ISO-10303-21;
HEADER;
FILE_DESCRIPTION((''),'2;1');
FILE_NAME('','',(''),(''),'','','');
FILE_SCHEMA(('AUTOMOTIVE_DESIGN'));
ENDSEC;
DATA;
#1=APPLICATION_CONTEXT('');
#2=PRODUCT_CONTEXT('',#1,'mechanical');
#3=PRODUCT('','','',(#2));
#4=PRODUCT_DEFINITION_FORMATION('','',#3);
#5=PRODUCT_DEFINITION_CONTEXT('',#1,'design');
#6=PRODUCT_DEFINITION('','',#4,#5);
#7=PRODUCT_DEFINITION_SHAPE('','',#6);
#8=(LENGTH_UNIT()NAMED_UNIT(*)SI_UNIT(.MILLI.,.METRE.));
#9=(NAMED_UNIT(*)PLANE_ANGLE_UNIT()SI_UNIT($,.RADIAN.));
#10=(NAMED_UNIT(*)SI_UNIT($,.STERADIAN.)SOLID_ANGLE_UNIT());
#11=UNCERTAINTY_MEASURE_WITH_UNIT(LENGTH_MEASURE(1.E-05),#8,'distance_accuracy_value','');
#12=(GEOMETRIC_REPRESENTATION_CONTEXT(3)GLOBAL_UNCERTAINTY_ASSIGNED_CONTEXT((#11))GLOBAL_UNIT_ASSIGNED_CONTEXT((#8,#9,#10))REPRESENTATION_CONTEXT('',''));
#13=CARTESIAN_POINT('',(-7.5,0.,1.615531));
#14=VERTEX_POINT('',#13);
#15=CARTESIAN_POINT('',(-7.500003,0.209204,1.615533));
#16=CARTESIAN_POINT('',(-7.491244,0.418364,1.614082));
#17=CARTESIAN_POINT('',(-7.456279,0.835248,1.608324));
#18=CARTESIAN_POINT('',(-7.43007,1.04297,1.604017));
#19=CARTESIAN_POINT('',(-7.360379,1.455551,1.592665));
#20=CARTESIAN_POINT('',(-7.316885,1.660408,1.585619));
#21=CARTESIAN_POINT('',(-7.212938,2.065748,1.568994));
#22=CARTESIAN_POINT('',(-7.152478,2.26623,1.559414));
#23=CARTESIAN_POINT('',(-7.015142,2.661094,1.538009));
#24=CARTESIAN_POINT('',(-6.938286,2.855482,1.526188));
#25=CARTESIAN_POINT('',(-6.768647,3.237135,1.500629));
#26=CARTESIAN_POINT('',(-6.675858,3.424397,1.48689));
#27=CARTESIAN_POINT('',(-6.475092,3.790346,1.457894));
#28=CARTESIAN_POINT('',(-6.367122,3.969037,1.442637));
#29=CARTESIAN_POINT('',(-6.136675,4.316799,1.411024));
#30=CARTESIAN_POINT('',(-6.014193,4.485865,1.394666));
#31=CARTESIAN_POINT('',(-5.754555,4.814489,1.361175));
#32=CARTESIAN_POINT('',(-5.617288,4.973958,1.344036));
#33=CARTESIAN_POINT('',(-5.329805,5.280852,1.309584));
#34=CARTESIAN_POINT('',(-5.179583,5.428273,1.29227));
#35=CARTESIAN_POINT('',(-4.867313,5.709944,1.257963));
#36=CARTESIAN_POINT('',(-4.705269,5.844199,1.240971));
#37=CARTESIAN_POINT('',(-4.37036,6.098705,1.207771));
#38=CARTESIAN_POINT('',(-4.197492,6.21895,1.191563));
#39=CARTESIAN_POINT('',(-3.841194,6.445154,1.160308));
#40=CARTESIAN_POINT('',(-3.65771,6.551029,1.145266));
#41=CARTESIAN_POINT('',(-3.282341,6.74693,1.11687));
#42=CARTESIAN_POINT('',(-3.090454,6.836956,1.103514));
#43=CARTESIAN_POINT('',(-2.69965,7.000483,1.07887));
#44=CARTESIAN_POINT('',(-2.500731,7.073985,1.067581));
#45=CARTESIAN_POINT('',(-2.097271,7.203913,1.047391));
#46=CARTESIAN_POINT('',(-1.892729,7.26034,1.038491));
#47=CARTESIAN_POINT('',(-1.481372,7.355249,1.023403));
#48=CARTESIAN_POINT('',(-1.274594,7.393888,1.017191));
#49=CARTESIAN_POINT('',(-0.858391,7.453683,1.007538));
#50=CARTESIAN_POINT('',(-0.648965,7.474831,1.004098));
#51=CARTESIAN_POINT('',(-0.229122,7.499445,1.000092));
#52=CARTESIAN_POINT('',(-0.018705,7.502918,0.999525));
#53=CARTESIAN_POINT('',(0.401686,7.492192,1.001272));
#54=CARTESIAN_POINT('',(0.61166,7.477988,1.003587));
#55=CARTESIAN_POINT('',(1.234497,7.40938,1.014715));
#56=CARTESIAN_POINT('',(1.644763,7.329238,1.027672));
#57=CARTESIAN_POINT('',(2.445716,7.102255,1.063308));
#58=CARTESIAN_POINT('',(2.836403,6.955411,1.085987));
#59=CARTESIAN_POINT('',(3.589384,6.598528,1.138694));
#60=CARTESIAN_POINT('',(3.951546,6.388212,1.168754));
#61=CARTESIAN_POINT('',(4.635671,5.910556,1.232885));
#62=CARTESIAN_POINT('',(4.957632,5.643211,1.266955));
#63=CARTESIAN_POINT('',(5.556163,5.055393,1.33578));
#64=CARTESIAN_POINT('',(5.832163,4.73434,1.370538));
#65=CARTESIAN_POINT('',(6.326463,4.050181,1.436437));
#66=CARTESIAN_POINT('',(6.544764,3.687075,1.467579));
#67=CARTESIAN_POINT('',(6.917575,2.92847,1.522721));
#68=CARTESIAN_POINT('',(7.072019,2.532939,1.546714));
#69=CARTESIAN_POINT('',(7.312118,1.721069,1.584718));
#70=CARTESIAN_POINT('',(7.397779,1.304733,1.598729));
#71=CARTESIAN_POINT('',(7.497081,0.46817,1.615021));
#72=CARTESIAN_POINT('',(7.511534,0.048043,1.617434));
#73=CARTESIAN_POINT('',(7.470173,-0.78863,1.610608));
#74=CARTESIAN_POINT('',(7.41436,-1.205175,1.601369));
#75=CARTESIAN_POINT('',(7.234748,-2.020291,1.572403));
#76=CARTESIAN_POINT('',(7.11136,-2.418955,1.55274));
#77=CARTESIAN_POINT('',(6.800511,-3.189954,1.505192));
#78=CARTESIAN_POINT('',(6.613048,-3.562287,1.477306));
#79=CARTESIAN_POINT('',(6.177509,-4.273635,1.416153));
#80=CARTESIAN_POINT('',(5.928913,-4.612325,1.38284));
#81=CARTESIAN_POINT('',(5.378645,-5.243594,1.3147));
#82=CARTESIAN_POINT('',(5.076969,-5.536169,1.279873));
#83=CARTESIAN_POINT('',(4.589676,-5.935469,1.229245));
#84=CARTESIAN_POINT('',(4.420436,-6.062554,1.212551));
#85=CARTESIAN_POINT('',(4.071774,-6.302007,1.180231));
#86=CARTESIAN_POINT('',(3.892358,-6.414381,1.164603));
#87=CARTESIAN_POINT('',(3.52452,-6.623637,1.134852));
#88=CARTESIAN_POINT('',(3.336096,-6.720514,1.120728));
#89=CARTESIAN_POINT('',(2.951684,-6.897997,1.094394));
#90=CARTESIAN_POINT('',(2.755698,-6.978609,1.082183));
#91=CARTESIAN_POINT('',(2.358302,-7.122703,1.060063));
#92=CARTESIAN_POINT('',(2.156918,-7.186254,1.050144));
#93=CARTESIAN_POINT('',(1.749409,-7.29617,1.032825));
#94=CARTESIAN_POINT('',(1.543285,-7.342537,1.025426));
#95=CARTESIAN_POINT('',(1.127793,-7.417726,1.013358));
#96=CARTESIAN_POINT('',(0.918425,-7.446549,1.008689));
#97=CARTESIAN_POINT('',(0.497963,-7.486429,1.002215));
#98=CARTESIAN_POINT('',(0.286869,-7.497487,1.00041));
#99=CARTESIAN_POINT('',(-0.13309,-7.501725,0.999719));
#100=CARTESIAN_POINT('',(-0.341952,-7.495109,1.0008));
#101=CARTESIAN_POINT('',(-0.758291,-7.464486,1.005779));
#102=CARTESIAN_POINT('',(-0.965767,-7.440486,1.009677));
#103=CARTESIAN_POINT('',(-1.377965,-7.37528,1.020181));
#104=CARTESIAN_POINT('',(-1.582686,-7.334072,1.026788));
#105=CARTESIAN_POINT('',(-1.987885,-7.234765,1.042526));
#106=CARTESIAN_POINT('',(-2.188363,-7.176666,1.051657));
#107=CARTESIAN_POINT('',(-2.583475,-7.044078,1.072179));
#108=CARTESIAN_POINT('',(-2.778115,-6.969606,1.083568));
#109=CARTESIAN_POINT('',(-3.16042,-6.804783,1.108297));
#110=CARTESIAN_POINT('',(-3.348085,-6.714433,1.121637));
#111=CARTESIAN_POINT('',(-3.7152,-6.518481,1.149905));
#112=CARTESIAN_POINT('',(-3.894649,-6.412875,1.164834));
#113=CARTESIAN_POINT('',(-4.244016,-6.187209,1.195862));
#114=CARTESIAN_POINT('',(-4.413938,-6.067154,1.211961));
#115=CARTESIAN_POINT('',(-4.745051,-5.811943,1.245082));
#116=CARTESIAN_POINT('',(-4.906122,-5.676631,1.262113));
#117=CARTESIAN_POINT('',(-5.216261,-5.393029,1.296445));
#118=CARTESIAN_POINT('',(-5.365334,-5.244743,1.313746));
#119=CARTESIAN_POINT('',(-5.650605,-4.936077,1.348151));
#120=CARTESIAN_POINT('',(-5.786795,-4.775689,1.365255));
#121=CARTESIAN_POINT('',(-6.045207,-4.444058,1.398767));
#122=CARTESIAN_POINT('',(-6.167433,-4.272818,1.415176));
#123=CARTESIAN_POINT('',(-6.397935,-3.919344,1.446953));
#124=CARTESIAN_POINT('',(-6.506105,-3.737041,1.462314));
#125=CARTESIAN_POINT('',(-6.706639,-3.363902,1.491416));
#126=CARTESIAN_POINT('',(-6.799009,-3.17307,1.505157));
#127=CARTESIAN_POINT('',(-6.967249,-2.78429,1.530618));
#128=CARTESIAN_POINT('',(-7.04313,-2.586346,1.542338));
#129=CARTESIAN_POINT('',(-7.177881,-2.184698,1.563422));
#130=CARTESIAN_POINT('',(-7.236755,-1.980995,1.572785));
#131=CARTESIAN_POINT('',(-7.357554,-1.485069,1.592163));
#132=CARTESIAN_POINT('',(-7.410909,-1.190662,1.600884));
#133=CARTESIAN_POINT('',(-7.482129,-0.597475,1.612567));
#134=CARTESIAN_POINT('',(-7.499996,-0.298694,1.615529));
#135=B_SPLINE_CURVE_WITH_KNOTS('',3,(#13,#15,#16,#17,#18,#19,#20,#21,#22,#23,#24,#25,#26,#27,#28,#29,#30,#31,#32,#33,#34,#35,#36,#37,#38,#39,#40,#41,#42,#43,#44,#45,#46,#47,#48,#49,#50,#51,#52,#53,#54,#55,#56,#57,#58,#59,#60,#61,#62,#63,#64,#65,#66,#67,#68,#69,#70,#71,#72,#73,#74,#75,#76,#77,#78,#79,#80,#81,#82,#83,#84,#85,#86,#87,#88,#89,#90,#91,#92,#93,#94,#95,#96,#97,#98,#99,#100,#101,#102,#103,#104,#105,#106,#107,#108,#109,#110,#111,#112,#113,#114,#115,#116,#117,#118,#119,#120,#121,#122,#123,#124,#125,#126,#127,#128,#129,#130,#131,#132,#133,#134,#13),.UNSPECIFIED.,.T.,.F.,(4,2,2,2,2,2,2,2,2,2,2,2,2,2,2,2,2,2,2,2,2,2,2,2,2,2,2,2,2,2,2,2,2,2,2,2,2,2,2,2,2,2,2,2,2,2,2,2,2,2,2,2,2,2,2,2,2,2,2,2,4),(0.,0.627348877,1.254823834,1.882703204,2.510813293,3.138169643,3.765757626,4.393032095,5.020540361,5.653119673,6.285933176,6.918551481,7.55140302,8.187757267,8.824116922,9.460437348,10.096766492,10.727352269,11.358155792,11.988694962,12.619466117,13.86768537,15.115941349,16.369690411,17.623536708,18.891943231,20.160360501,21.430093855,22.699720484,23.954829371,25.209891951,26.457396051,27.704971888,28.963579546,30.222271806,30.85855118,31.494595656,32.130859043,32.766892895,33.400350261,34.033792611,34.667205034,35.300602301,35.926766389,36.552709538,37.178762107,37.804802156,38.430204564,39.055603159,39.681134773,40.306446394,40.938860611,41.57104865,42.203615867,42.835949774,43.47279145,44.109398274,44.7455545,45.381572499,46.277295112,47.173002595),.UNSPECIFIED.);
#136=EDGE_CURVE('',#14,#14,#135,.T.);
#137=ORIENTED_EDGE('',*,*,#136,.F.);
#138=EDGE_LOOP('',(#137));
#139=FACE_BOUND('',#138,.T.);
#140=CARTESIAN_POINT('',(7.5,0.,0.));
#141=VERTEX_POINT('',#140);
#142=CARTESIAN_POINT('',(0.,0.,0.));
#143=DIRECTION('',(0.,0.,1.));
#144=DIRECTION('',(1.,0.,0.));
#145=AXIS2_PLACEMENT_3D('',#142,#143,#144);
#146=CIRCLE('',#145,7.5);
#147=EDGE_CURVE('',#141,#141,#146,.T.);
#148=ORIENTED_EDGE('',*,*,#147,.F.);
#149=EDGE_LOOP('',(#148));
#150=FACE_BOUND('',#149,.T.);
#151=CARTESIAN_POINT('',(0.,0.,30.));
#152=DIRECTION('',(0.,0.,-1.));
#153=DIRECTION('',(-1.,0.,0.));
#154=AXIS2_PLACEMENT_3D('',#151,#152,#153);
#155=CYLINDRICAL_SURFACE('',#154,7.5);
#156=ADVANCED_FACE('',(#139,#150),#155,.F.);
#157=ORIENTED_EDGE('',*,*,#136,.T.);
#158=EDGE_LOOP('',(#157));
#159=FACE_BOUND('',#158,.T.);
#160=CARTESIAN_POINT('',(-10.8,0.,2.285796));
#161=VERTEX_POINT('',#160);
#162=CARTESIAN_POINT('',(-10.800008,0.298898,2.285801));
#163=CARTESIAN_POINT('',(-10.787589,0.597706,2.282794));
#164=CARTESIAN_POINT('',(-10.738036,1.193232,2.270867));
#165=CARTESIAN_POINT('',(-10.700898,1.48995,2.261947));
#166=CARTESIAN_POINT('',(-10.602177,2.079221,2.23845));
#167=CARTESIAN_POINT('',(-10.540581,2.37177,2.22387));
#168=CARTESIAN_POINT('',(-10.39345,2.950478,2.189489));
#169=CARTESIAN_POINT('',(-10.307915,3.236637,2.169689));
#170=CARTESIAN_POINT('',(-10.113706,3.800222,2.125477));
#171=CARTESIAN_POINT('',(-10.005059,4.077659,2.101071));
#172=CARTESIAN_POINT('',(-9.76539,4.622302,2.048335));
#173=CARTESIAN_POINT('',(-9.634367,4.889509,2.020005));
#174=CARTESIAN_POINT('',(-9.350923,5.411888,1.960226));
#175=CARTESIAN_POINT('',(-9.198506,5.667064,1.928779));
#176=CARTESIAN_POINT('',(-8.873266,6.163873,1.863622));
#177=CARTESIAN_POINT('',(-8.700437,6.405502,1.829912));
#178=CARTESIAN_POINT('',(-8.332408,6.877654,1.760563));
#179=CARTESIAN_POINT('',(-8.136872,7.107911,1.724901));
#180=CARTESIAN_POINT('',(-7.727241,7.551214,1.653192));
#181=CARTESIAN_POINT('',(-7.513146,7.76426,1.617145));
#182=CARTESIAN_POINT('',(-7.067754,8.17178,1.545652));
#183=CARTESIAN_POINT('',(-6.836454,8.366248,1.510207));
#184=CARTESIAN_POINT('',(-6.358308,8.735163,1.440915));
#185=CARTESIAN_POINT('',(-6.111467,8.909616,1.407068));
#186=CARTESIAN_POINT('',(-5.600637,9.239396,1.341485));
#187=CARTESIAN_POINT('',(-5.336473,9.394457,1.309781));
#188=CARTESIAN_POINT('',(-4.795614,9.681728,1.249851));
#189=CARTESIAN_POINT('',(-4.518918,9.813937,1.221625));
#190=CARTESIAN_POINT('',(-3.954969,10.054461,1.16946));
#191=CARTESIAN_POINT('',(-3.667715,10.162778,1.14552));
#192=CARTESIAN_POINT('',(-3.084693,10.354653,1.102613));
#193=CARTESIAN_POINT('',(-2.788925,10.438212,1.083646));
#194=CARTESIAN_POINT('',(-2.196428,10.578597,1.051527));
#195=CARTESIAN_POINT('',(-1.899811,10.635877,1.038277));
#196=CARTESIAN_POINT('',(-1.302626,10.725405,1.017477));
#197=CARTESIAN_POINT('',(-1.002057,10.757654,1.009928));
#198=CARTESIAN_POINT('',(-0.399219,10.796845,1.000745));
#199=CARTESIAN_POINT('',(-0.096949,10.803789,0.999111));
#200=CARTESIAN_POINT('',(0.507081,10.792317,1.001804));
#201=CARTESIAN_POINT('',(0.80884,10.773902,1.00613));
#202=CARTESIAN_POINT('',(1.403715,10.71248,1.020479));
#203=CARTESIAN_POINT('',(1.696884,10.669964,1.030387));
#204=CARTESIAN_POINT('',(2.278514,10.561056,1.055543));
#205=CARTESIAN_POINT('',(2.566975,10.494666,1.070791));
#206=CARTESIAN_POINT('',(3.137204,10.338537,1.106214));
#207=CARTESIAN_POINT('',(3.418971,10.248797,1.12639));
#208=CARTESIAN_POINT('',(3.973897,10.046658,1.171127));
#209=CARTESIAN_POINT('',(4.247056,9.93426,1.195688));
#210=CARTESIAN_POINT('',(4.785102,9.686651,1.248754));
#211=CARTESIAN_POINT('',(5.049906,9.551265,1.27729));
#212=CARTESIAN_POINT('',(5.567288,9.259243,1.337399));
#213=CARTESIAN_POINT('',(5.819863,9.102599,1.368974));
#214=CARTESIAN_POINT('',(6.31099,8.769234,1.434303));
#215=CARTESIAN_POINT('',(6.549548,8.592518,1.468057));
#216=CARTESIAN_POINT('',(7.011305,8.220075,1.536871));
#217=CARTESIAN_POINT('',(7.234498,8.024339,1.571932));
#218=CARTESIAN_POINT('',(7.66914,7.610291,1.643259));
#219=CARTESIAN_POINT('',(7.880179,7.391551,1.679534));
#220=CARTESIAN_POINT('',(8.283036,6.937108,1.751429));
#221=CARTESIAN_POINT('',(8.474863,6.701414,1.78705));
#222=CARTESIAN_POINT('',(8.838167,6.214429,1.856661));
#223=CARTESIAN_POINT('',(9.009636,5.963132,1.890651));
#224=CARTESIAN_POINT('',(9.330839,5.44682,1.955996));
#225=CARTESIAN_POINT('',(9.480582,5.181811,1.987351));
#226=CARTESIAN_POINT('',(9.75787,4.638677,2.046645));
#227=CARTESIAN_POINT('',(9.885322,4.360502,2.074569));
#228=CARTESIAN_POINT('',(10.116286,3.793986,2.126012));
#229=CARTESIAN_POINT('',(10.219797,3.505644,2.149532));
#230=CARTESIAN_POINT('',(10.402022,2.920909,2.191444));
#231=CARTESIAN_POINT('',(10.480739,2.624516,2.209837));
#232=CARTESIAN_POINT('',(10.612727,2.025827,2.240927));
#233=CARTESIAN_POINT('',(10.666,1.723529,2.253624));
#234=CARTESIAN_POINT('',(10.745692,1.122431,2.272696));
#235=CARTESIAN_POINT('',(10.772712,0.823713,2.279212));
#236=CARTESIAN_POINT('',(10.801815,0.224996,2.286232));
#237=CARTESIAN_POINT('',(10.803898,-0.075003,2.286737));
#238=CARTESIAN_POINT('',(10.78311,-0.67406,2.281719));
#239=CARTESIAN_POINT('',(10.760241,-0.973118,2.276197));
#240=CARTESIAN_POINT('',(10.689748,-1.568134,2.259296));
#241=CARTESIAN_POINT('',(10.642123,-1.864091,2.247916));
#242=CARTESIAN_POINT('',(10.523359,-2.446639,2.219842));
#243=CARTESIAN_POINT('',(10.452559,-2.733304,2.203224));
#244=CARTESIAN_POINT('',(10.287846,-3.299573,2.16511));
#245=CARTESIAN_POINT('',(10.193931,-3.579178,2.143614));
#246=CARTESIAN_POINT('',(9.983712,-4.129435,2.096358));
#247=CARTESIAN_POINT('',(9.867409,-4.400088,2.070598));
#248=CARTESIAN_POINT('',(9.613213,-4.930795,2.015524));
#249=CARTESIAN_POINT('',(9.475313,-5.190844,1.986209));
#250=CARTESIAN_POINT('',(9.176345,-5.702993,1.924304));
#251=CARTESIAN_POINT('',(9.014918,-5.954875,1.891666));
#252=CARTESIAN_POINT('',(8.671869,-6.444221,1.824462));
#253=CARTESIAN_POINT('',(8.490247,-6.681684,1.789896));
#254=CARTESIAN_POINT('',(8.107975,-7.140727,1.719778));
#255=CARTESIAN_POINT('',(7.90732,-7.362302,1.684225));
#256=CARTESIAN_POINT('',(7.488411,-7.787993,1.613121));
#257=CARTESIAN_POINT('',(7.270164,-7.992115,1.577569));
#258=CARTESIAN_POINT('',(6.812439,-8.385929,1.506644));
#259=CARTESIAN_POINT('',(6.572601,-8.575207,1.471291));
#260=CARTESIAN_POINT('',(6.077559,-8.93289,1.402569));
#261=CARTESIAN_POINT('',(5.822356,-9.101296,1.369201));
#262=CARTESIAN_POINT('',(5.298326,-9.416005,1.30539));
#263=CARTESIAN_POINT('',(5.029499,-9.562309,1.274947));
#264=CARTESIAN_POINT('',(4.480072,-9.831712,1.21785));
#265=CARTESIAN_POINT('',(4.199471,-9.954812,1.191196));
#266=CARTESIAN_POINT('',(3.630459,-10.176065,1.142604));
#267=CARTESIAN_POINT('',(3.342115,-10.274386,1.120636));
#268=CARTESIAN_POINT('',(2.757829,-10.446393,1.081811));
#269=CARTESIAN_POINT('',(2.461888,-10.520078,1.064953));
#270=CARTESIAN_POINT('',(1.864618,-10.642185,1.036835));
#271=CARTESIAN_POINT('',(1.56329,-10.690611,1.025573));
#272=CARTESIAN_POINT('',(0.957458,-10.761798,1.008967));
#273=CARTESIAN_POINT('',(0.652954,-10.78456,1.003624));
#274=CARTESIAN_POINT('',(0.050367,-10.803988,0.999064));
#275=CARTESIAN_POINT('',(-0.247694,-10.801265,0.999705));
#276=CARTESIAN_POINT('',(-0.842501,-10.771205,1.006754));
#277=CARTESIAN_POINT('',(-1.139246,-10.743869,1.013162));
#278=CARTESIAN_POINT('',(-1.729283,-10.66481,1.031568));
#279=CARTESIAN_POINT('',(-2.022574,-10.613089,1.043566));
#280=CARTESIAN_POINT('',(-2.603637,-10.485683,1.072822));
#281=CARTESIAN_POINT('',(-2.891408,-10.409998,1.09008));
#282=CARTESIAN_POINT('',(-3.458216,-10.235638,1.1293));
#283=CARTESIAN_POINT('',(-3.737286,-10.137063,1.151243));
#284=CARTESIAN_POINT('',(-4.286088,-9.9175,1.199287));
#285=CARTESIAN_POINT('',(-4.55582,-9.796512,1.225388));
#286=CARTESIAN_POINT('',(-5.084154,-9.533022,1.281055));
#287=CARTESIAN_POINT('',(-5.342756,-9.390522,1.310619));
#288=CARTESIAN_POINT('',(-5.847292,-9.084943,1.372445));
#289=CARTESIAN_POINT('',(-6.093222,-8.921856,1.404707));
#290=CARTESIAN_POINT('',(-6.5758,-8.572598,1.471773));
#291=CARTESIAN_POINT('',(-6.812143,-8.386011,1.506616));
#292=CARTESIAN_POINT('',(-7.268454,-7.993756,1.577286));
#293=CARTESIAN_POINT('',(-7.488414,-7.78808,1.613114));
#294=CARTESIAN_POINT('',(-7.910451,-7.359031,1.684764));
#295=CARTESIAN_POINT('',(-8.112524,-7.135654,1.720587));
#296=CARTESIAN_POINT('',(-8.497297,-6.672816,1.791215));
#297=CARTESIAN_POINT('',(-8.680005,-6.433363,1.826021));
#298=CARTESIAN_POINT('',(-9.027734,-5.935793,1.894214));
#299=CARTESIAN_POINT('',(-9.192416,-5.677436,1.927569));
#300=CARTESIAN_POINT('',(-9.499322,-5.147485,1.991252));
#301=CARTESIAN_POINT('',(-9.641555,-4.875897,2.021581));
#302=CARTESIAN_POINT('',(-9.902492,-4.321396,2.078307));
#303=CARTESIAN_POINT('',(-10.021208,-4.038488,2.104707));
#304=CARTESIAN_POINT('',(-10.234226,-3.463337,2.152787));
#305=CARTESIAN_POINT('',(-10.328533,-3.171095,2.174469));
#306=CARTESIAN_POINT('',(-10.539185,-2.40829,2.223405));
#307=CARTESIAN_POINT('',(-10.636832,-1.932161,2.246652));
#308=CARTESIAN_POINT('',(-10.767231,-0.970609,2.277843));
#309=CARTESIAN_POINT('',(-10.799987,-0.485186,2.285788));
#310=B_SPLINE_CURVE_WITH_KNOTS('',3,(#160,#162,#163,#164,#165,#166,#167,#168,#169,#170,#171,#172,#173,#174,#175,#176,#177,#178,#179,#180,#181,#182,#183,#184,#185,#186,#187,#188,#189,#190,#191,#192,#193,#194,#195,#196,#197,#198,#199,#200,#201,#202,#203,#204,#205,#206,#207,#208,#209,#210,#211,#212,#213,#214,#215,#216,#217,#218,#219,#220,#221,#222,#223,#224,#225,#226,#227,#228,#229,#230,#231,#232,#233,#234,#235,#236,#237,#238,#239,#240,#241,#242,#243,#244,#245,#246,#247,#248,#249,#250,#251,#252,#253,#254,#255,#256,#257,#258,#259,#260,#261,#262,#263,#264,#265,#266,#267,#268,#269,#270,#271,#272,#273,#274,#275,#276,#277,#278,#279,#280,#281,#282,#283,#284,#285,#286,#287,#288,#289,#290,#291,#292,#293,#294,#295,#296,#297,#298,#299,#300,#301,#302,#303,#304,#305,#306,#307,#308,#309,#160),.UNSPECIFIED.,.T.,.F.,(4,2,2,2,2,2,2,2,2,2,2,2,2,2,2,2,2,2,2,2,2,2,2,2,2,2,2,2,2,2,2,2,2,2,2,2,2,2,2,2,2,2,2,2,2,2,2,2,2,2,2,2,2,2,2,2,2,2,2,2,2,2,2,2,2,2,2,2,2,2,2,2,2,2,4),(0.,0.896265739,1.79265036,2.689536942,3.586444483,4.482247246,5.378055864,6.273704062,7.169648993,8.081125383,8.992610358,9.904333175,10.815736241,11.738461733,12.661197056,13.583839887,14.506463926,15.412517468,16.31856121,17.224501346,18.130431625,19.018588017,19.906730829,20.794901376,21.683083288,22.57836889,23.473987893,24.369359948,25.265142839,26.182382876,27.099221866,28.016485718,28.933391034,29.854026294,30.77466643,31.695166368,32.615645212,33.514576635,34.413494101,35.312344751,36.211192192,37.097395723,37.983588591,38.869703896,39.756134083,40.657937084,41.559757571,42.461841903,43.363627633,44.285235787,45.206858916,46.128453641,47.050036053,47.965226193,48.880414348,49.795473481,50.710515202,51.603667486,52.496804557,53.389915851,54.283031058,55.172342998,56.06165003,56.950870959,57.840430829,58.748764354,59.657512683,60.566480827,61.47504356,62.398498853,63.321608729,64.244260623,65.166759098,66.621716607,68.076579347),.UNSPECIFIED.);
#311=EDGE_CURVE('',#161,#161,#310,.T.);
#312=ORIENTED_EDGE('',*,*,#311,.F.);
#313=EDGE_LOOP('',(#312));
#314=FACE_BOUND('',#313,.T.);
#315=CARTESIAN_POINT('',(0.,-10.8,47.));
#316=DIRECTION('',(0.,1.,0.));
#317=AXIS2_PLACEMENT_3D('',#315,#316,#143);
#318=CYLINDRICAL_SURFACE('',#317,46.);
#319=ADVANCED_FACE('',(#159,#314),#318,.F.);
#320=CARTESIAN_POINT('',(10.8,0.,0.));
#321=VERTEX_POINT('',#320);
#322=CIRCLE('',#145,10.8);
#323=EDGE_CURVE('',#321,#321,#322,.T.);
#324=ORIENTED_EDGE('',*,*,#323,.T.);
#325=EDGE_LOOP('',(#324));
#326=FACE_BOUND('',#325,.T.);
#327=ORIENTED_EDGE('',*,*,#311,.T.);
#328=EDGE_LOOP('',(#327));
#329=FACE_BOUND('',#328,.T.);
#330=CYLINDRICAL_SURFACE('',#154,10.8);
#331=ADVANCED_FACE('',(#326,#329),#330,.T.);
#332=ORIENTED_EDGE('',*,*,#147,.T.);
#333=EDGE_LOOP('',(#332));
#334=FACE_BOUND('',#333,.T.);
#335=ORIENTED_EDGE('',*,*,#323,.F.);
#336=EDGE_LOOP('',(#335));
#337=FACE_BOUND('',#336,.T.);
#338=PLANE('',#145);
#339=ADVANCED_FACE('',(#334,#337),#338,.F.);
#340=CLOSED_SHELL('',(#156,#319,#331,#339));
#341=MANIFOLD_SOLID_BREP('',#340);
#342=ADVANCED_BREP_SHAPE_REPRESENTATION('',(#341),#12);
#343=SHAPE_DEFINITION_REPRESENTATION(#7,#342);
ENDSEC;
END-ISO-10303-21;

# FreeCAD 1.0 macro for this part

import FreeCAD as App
import Part
import Sketcher
Q = App.Units.Quantity

doc = App.newDocument("Part")
params = doc.addObject("Spreadsheet::Sheet", "Params")
for row, (alias, value) in enumerate([
    ("sketch1_diameter", "15 mm"),
    ("sketch1_diameter2", "21.6 mm"),
    ("pad1_length", "30 mm"),
    ("sketch2_diameter", "92 mm"),
], start=1):
    params.set(f"A{row}", alias)
    params.set(f"B{row}", "=" + value)
    params.setAlias(f"B{row}", alias)

body = doc.addObject("PartDesign::Body", "Body")

# Sketch on XY plane
sketch1 = body.newObject("Sketcher::SketchObject", "Sketch")
sketch1.AttachmentSupport = (doc.getObject("XY_Plane"), [""])
sketch1.MapMode = "FlatFace"
sketch1.addGeometry([
    Part.Circle(App.Vector(0, 0, 0), App.Vector(0, 0, 1), 11),
    Part.Circle(App.Vector(0, 0, 0), App.Vector(0, 0, 1), 8),
], False)
sketch1.addConstraint([
    Sketcher.Constraint("Coincident", 0, 3, -1, 1),
    Sketcher.Constraint("Coincident", 1, 3, -1, 1),
    Sketcher.Constraint("Diameter", 1, Q("15 mm")),
    Sketcher.Constraint("Diameter", 0, Q("21.6 mm")),
])
sketch1.setExpression("Constraints[2]", "Params.sketch1_diameter")
sketch1.setExpression("Constraints[3]", "Params.sketch1_diameter2")
pad1 = body.newObject("PartDesign::Pad", "Pad")
pad1.Profile = sketch1
pad1.setExpression("Length", "Params.pad1_length")

# Sketch on XZ plane
sketch2 = body.newObject("Sketcher::SketchObject", "Sketch001")
sketch2.AttachmentSupport = (doc.getObject("XZ_Plane"), [""])
sketch2.MapMode = "FlatFace"
sketch2.addGeometry(Part.Circle(App.Vector(0, 47, 0), App.Vector(0, 0, 1), 46), False)
sketch2.addConstraint([
    Sketcher.Constraint("PointOnObject", 0, 3, -2),
    Sketcher.Constraint("Diameter", 0, Q("92 mm")),
    Sketcher.Constraint("DistanceY", -1, 1, 0, 3, Q("47 mm")),
])
sketch2.setExpression("Constraints[1]", "Params.sketch2_diameter")
pocket1 = body.newObject("PartDesign::Pocket", "Pocket")
pocket1.Profile = sketch2
pocket1.Type = "ThroughAll"
pocket1.Midplane = True

doc.recompute()
